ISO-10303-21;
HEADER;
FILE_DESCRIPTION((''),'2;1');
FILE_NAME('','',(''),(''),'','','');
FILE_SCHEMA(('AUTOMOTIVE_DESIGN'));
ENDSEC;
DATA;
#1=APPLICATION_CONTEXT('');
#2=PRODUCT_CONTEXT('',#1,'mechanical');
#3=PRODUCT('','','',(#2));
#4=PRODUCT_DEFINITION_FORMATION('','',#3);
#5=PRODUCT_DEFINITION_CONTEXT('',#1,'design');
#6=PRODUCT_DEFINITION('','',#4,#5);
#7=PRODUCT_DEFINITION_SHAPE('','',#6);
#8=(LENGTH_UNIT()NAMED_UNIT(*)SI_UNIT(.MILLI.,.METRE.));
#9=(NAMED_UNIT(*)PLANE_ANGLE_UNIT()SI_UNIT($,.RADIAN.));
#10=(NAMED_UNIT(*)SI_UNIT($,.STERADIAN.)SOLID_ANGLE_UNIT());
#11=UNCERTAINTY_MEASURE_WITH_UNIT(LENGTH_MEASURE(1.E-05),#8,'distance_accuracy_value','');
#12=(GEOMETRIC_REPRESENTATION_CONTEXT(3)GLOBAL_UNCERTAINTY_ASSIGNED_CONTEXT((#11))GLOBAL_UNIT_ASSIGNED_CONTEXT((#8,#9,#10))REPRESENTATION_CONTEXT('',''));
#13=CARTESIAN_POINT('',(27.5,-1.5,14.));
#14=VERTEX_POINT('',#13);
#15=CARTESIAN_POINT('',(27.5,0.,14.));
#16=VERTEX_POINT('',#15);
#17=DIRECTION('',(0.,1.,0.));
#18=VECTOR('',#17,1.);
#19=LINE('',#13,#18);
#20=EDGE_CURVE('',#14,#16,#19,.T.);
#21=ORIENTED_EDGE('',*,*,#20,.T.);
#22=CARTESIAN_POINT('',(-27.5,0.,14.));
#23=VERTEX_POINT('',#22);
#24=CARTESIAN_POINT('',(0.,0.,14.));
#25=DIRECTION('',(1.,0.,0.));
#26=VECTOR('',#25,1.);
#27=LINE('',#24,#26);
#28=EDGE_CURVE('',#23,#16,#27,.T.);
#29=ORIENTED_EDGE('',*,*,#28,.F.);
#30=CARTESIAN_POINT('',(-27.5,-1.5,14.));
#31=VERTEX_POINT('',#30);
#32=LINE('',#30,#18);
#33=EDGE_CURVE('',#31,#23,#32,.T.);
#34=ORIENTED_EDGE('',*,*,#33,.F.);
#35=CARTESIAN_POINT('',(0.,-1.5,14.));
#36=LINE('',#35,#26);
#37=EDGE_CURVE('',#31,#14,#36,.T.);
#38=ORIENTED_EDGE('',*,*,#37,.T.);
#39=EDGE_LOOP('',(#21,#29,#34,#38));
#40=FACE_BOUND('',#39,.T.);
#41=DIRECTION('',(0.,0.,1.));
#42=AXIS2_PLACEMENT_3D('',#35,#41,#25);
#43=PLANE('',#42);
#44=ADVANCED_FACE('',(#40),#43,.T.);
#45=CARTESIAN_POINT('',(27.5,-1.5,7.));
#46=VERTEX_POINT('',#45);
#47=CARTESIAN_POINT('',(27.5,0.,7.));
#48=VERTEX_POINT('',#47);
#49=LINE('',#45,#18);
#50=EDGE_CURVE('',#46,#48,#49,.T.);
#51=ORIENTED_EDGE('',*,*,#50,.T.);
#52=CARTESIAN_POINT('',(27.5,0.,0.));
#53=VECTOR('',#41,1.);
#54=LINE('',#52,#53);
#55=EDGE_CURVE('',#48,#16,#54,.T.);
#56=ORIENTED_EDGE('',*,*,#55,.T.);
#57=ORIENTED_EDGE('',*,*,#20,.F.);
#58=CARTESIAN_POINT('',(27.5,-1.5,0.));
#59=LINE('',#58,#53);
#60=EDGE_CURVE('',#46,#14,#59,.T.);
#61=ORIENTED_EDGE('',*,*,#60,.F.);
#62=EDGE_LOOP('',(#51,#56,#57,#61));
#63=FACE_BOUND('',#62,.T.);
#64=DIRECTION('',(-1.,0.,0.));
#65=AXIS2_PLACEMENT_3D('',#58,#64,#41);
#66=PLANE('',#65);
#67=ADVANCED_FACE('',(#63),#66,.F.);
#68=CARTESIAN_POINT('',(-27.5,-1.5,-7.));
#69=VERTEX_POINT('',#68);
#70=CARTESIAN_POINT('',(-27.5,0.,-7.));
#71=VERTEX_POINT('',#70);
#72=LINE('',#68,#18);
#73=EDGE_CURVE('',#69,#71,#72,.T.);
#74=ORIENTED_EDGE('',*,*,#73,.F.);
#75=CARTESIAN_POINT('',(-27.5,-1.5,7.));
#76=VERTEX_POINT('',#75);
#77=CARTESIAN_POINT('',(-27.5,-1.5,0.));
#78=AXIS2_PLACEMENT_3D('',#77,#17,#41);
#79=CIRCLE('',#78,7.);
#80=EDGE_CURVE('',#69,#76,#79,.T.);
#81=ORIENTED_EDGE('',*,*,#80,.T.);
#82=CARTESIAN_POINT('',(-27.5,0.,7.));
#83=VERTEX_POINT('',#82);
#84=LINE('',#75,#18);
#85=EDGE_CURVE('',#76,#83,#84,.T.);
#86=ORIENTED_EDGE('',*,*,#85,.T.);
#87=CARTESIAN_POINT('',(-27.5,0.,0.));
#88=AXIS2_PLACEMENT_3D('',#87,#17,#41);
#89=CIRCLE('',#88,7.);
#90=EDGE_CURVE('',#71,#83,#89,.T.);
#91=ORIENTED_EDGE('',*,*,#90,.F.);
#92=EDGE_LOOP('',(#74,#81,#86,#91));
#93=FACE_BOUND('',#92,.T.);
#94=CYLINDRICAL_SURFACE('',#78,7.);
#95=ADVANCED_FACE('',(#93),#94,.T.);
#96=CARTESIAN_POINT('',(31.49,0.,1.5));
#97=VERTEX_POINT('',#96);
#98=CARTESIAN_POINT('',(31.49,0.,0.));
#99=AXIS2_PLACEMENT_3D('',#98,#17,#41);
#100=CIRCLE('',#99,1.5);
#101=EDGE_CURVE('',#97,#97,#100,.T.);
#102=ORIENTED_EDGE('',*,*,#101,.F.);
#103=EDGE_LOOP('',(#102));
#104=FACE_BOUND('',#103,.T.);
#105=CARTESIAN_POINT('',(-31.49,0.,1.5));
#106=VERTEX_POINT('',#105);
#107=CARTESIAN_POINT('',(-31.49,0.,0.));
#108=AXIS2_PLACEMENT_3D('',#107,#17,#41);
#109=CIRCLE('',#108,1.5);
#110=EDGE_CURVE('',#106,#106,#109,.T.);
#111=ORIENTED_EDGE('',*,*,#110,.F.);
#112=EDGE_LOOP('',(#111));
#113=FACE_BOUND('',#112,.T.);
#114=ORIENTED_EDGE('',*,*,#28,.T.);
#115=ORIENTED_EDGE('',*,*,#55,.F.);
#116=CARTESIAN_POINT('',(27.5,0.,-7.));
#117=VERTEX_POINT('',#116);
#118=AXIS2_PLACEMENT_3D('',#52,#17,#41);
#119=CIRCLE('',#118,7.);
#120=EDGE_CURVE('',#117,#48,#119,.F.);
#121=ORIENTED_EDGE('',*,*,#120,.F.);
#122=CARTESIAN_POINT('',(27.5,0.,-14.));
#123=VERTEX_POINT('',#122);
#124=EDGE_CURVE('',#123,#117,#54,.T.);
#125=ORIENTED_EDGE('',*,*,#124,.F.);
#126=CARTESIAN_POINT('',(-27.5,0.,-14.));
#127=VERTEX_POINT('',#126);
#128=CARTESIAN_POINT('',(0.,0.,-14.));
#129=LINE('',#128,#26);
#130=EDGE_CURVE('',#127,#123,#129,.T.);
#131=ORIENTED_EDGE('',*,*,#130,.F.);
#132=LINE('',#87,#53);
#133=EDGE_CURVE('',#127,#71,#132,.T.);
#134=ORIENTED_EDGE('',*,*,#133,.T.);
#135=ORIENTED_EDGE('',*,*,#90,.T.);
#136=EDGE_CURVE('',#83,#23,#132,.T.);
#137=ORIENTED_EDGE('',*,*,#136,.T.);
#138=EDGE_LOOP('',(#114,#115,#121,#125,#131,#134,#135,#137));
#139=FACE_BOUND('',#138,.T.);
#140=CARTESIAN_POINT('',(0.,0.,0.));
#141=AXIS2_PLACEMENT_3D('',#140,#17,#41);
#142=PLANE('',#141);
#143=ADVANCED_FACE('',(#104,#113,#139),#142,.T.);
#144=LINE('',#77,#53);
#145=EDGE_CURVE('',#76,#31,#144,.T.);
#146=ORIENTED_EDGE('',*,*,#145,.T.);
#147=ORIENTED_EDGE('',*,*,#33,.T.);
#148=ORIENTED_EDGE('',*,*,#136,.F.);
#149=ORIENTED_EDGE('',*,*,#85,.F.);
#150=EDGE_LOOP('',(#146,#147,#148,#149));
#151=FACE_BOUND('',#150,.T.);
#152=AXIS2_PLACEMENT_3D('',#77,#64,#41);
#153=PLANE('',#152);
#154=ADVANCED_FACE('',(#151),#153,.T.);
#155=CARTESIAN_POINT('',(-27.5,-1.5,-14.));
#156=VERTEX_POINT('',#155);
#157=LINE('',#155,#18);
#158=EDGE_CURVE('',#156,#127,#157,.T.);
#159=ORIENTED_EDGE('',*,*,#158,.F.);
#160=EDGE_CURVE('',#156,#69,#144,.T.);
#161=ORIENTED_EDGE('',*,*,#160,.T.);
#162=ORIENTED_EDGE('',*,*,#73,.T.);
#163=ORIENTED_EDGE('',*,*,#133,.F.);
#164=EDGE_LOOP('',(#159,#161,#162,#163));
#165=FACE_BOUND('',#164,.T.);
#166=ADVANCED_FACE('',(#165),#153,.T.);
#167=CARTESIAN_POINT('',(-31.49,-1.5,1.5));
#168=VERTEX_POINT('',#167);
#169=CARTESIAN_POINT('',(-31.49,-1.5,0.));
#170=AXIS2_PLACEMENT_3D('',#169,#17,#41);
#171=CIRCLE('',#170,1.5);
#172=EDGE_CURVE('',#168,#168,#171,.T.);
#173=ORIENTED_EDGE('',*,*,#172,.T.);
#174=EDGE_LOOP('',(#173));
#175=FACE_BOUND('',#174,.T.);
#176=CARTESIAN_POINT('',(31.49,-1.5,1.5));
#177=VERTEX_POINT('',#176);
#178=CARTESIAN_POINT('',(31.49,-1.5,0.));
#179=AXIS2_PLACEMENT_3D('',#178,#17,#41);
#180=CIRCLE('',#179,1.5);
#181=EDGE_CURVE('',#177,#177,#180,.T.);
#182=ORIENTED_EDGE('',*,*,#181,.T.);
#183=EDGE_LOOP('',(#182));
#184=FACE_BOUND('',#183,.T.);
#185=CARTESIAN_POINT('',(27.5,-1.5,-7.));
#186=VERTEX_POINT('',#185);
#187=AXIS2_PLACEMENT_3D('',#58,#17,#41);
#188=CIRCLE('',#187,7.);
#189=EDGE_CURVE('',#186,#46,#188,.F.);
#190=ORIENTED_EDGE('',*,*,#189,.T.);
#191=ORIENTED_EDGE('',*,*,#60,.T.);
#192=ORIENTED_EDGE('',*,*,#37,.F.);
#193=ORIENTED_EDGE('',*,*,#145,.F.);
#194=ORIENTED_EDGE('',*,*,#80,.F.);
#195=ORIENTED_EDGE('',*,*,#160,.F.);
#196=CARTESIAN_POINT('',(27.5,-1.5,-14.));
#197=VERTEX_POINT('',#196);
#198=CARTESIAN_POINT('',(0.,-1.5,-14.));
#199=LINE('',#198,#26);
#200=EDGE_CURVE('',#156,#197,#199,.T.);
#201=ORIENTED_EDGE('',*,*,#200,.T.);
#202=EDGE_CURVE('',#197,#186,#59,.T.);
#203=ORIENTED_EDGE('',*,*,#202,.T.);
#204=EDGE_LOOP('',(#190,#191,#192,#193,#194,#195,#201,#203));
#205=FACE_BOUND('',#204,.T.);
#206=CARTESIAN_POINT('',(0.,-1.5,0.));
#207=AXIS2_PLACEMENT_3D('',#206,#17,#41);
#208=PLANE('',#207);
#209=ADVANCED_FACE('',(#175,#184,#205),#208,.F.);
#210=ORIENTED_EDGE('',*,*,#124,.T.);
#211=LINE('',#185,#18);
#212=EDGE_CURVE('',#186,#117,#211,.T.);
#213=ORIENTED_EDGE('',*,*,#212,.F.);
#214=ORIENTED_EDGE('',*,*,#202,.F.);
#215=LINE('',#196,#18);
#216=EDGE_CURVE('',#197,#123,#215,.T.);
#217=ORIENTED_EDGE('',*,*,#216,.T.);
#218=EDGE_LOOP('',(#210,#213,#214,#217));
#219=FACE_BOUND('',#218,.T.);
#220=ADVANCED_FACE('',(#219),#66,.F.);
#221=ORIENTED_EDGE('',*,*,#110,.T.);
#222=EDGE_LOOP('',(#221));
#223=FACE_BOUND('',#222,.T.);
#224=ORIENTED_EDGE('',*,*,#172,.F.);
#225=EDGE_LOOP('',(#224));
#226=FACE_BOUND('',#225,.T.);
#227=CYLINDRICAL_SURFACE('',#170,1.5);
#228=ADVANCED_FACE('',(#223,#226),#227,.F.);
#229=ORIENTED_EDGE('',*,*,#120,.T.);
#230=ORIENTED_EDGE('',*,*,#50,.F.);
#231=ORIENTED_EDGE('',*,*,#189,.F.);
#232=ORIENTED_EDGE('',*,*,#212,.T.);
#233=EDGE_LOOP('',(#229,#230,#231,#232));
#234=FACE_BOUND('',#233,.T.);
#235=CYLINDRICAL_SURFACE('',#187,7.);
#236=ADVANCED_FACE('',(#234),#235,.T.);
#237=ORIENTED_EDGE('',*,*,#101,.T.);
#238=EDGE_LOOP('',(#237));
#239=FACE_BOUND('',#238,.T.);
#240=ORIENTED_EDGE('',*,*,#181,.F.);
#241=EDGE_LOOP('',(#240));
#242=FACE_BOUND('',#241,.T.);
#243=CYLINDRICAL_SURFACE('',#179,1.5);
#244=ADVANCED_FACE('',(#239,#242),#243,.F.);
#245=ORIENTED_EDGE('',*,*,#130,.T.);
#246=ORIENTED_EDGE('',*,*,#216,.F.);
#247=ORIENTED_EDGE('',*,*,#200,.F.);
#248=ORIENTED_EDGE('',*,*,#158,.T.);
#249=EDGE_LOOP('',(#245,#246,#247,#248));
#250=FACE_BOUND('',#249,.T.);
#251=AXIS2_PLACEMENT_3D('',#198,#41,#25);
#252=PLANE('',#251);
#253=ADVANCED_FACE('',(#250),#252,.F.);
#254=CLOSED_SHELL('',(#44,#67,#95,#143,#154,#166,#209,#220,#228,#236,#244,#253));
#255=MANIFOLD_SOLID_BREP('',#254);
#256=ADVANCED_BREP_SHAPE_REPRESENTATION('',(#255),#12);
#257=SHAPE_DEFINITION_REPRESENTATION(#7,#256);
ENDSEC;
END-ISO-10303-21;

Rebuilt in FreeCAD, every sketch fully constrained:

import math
import FreeCAD as App
import Part
import Sketcher

V = App.Vector

doc = App.newDocument("Part")
params = doc.addObject("Spreadsheet::Sheet", "Params")
for row, (alias, value) in enumerate([
    ("sketch1_radius", "7 mm"),
    ("sketch1_width", "55 mm"),
    ("sketch1_height", "7 mm"),
    ("pad1_length", "1.5 mm"),
    ("sketch2_diameter", "3 mm"),
], start=1):
    params.set(f"A{row}", alias)
    params.set(f"B{row}", "=" + value)
    params.setAlias(f"B{row}", alias)

body = doc.addObject("PartDesign::Body", "Body")

# Sketch on XZ plane
sketch1 = body.newObject("Sketcher::SketchObject", "Sketch")
sketch1.AttachmentSupport = (doc.getObject("XZ_Plane"), [""])
sketch1.MapMode = "FlatFace"
sketch1.addGeometry([
    Part.LineSegment(V(-27.5, 7, 0), V(-27.5, 14, 0)),  # 0
    Part.LineSegment(V(-27.5, 14, 0), V(27.5, 14, 0)),  # 1
    Part.LineSegment(V(27.5, 14, 0), V(27.5, 7, 0)),  # 2
    Part.ArcOfCircle(Part.Circle(V(27.5, 0, 0), V(0, 0, 1), 7), math.radians(-90), math.radians(90)),  # 3
    Part.LineSegment(V(27.5, -7, 0), V(27.5, -14, 0)),  # 4
    Part.LineSegment(V(27.5, -14, 0), V(-27.5, -14, 0)),  # 5
    Part.LineSegment(V(-27.5, -14, 0), V(-27.5, -7, 0)),  # 6
    Part.ArcOfCircle(Part.Circle(V(-27.5, 0, 0), V(0, 0, 1), 7), math.radians(90), math.radians(270)),  # 7
], False)
sketch1.addConstraint([
    Sketcher.Constraint("Coincident", 0, 2, 1, 1),
    Sketcher.Constraint("Coincident", 1, 2, 2, 1),
    Sketcher.Constraint("Coincident", 2, 2, 3, 2),
    Sketcher.Constraint("Coincident", 3, 1, 4, 1),
    Sketcher.Constraint("Coincident", 4, 2, 5, 1),
    Sketcher.Constraint("Coincident", 5, 2, 6, 1),
    Sketcher.Constraint("Coincident", 6, 2, 7, 2),
    Sketcher.Constraint("Coincident", 7, 1, 0, 1),
    Sketcher.Constraint("Vertical", 0),
    Sketcher.Constraint("Horizontal", 1),
    Sketcher.Constraint("Vertical", 2),
    Sketcher.Constraint("Vertical", 4),
    Sketcher.Constraint("Horizontal", 5),
    Sketcher.Constraint("Vertical", 6),
    Sketcher.Constraint("Equal", 3, 7),
    Sketcher.Constraint("Symmetric", 3, 3, 7, 3, -1, 1),
    Sketcher.Constraint("Symmetric", 0, 2, 4, 2, -1, 1),
    Sketcher.Constraint("Symmetric", 3, 1, 6, 2, -2),
    Sketcher.Constraint("Vertical", 7, 3, 0, 2),
    Sketcher.Constraint("Vertical", 3, 3, 1, 2),
    Sketcher.Constraint("Radius", 3, 7.0),
    Sketcher.Constraint("DistanceX", 1, 1, 1, 2, 55.0),
    Sketcher.Constraint("DistanceY", 0, 1, 0, 2, 7.0),
])
sketch1.setExpression("Constraints[20]", "Params.sketch1_radius")
sketch1.setExpression("Constraints[21]", "Params.sketch1_width")
sketch1.setExpression("Constraints[22]", "Params.sketch1_height")
pad1 = body.newObject("PartDesign::Pad", "Pad")
pad1.Profile = sketch1
pad1.setExpression("Length", "Params.pad1_length")

# Sketch on XZ plane
sketch2 = body.newObject("Sketcher::SketchObject", "Sketch001")
sketch2.AttachmentSupport = (doc.getObject("XZ_Plane"), [""])
sketch2.MapMode = "FlatFace"
sketch2.addGeometry([
    Part.Circle(V(-31.49, 0, 0), V(0, 0, 1), 1.5),
    Part.Circle(V(31.49, 0, 0), V(0, 0, 1), 1.5),
], False)
sketch2.addConstraint([
    Sketcher.Constraint("Equal", 0, 1),
    Sketcher.Constraint("Symmetric", 0, 3, 1, 3, -1, 1),
    Sketcher.Constraint("PointOnObject", 0, 3, -1),
    Sketcher.Constraint("Diameter", 0, 3.0),
    Sketcher.Constraint("DistanceX", 0, 3, -1, 1, 31.49),
])
sketch2.setExpression("Constraints[3]", "Params.sketch2_diameter")
pocket1 = body.newObject("PartDesign::Pocket", "Pocket")
pocket1.Profile = sketch2
pocket1.Type = "ThroughAll"
pocket1.Reversed = True

doc.recompute()
